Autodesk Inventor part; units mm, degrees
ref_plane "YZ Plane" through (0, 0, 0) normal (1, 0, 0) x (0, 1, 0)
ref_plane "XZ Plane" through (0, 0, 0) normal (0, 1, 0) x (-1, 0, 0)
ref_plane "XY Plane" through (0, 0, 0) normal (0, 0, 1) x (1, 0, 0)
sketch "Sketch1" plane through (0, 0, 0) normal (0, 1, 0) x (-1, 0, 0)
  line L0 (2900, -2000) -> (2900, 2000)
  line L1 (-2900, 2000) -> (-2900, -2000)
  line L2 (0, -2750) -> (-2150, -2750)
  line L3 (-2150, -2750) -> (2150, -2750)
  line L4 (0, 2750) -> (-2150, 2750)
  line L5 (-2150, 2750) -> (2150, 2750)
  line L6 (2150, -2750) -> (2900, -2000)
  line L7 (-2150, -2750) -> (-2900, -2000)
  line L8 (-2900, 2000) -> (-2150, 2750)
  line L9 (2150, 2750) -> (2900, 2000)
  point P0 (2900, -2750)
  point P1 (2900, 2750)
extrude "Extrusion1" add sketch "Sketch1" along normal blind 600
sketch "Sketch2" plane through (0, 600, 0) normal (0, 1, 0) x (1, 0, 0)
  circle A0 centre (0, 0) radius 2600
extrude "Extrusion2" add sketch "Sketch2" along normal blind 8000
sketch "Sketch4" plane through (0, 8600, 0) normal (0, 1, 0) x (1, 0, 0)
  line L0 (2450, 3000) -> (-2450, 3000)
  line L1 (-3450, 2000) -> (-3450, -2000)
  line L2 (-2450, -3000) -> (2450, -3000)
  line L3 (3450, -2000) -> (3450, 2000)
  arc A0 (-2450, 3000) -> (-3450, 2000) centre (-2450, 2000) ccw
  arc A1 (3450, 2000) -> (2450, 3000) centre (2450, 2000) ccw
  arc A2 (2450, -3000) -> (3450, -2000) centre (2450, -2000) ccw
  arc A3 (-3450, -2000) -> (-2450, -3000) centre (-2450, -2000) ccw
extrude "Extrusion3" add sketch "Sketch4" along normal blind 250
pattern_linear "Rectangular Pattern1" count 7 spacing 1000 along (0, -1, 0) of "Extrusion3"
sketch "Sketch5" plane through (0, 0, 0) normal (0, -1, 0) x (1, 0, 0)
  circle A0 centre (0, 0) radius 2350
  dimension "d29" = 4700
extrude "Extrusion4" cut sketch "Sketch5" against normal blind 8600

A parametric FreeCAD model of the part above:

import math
import FreeCAD as App
import Part
import Sketcher
from FreeCAD import Vector
Q = App.Units.Quantity

doc = App.newDocument("Part")
body = doc.addObject("PartDesign::Body", "Body")

sketch1 = body.newObject("Sketcher::SketchObject", "Sketch")
sketch1.AttachmentSupport = (doc.getObject("XZ_Plane"), [""])
sketch1.MapMode = "FlatFace"
sketch1.addGeometry([
    Part.LineSegment(Vector(-2150, -2750, 0), Vector(-2900, -2000, 0)),
    Part.LineSegment(Vector(-2900, -2000, 0), Vector(-2900, 2000, 0)),
    Part.LineSegment(Vector(-2900, 2000, 0), Vector(-2150, 2750, 0)),
    Part.LineSegment(Vector(-2150, 2750, 0), Vector(2150, 2750, 0)),
    Part.LineSegment(Vector(2150, 2750, 0), Vector(2900, 2000, 0)),
    Part.LineSegment(Vector(2900, 2000, 0), Vector(2900, -2000, 0)),
    Part.LineSegment(Vector(2900, -2000, 0), Vector(2150, -2750, 0)),
    Part.LineSegment(Vector(2150, -2750, 0), Vector(-2150, -2750, 0)),
], False)
sketch1.addConstraint([
    Sketcher.Constraint("Coincident", 0, 2, 1, 1),
    Sketcher.Constraint("Coincident", 1, 2, 2, 1),
    Sketcher.Constraint("Coincident", 2, 2, 3, 1),
    Sketcher.Constraint("Coincident", 3, 2, 4, 1),
    Sketcher.Constraint("Coincident", 4, 2, 5, 1),
    Sketcher.Constraint("Coincident", 5, 2, 6, 1),
    Sketcher.Constraint("Coincident", 6, 2, 7, 1),
    Sketcher.Constraint("Coincident", 7, 2, 0, 1),
    Sketcher.Constraint("Vertical", 1),
    Sketcher.Constraint("Horizontal", 3),
    Sketcher.Constraint("Vertical", 5),
    Sketcher.Constraint("Horizontal", 7),
    Sketcher.Constraint("Symmetric", 0, 2, 4, 2, -1, 1),
    Sketcher.Constraint("Symmetric", 2, 2, 6, 2, -1, 1),
    Sketcher.Constraint("Perpendicular", 0, 2),
    Sketcher.Constraint("Perpendicular", 2, 4),
    Sketcher.Constraint("Perpendicular", 4, 6),
    Sketcher.Constraint("Horizontal", 1, 2, 4, 2),
    Sketcher.Constraint("Vertical", 3, 2, 6, 2),
    Sketcher.Constraint("DistanceX", 3, 1, 3, 2, Q("4300 mm")),
    Sketcher.Constraint("DistanceY", 1, 1, 1, 2, Q("4000 mm")),
    Sketcher.Constraint("DistanceX", 0, 2, -1, 1, Q("2900 mm")),
])
pad1 = body.newObject("PartDesign::Pad", "Pad")
pad1.Profile = sketch1
pad1.Length = 600
pad1.Reversed = True

sketch2 = body.newObject("Sketcher::SketchObject", "Sketch001")
sketch2.AttachmentSupport = (doc.getObject("XZ_Plane"), [""])
sketch2.MapMode = "FlatFace"
sketch2.AttachmentOffset = App.Placement(Vector(0, 0, -600), App.Rotation())
sketch2.addGeometry(Part.Circle(Vector(0, 0, 0), Vector(0, 0, 1), 2600), False)
sketch2.addConstraint([
    Sketcher.Constraint("Coincident", 0, 3, -1, 1),
    Sketcher.Constraint("Diameter", 0, Q("5200 mm")),
])
pad2 = body.newObject("PartDesign::Pad", "Pad001")
pad2.Profile = sketch2
pad2.Length = 8000
pad2.Reversed = True

sketch3 = body.newObject("Sketcher::SketchObject", "Sketch002")
sketch3.AttachmentSupport = (doc.getObject("XZ_Plane"), [""])
sketch3.MapMode = "FlatFace"
sketch3.AttachmentOffset = App.Placement(Vector(0, 0, -8600), App.Rotation())
sketch3.addGeometry([
    Part.ArcOfCircle(Part.Circle(Vector(2450, -2000, 0), Vector(0, 0, 1), 1000), math.radians(-90), math.radians(0)),
    Part.LineSegment(Vector(2450, -3000, 0), Vector(-2450, -3000, 0)),
    Part.ArcOfCircle(Part.Circle(Vector(-2450, -2000, 0), Vector(0, 0, 1), 1000), math.radians(180), math.radians(270)),
    Part.LineSegment(Vector(-3450, -2000, 0), Vector(-3450, 2000, 0)),
    Part.ArcOfCircle(Part.Circle(Vector(-2450, 2000, 0), Vector(0, 0, 1), 1000), math.radians(90), math.radians(180)),
    Part.LineSegment(Vector(-2450, 3000, 0), Vector(2450, 3000, 0)),
    Part.ArcOfCircle(Part.Circle(Vector(2450, 2000, 0), Vector(0, 0, 1), 1000), math.radians(0), math.radians(90)),
    Part.LineSegment(Vector(3450, 2000, 0), Vector(3450, -2000, 0)),
], False)
sketch3.addConstraint([
    Sketcher.Constraint("Coincident", 0, 1, 1, 1),
    Sketcher.Constraint("Coincident", 1, 2, 2, 2),
    Sketcher.Constraint("Coincident", 2, 1, 3, 1),
    Sketcher.Constraint("Coincident", 3, 2, 4, 2),
    Sketcher.Constraint("Coincident", 4, 1, 5, 1),
    Sketcher.Constraint("Coincident", 5, 2, 6, 2),
    Sketcher.Constraint("Coincident", 6, 1, 7, 1),
    Sketcher.Constraint("Coincident", 7, 2, 0, 2),
    Sketcher.Constraint("Horizontal", 1),
    Sketcher.Constraint("Vertical", 3),
    Sketcher.Constraint("Horizontal", 5),
    Sketcher.Constraint("Vertical", 7),
    Sketcher.Constraint("Equal", 0, 2),
    Sketcher.Constraint("Equal", 2, 4),
    Sketcher.Constraint("Equal", 4, 6),
    Sketcher.Constraint("Symmetric", 0, 3, 4, 3, -1, 1),
    Sketcher.Constraint("Horizontal", 6, 3, 3, 2),
    Sketcher.Constraint("Vertical", 4, 3, 1, 2),
    Sketcher.Constraint("Equal", 1, 5),
    Sketcher.Constraint("Equal", 3, 7),
    Sketcher.Constraint("Radius", 0, Q("1000 mm")),
    Sketcher.Constraint("DistanceX", 1, 2, 1, 1, Q("4900 mm")),
    Sketcher.Constraint("DistanceY", 3, 1, 3, 2, Q("4000 mm")),
    Sketcher.Constraint("DistanceX", -1, 1, 0, 3, Q("2450 mm")),
    Sketcher.Constraint("DistanceY", 0, 3, -1, 1, Q("2000 mm")),
    Sketcher.Constraint("DistanceX", -1, 1, 5, 2, Q("2450 mm")),
    Sketcher.Constraint("DistanceY", 7, 2, -1, 1, Q("2000 mm")),
])
pad3 = body.newObject("PartDesign::Pad", "Pad002")
pad3.Profile = sketch3
pad3.Length = 250
pad3.Reversed = True
doc.recompute()

linearpattern = body.newObject("PartDesign::LinearPattern", "LinearPattern")
linearpattern.Originals = [pad3]
linearpattern.Direction = (doc.getObject("Y_Axis"), [""])
linearpattern.Mode = "offset"
linearpattern.Offset = 1000
linearpattern.Occurrences = 7
linearpattern.Reversed = True
body.Tip = linearpattern

sketch4 = body.newObject("Sketcher::SketchObject", "Sketch003")
sketch4.AttachmentSupport = (doc.getObject("XZ_Plane"), [""])
sketch4.MapMode = "FlatFace"
sketch4.addGeometry(Part.Circle(Vector(0, 0, 0), Vector(0, 0, 1), 2350), False)
sketch4.addConstraint([
    Sketcher.Constraint("Coincident", 0, 3, -1, 1),
    Sketcher.Constraint("Diameter", 0, Q("4700 mm")),
])
pocket1 = body.newObject("PartDesign::Pocket", "Pocket")
pocket1.Profile = sketch4
pocket1.Length = 8600

doc.recompute()
